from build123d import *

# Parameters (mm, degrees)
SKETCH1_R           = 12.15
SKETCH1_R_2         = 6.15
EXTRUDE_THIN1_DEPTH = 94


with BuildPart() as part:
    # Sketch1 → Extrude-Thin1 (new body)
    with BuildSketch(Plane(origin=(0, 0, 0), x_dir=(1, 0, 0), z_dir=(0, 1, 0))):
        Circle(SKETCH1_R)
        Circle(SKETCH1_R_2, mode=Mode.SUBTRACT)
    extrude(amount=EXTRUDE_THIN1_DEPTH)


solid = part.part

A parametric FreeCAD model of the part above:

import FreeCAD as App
import Part
import Sketcher

V = App.Vector

doc = App.newDocument("Part")
body = doc.addObject("PartDesign::Body", "Body")

# Sketch on XZ plane
sketch1 = body.newObject("Sketcher::SketchObject", "Sketch")
sketch1.AttachmentSupport = (doc.getObject("XZ_Plane"), [""])
sketch1.MapMode = "FlatFace"
sketch1.addGeometry([
    Part.Circle(V(0, 0, 0), V(0, 0, 1), 12.15),
    Part.Circle(V(0, 0, 0), V(0, 0, 1), 6.15),
], False)
sketch1.addConstraint([
    Sketcher.Constraint("Coincident", 0, 3, -1, 1),
    Sketcher.Constraint("Coincident", 1, 3, -1, 1),
    Sketcher.Constraint("Diameter", 0, 24.3),
    Sketcher.Constraint("Diameter", 1, 12.3),
])
pad1 = body.newObject("PartDesign::Pad", "Pad")
pad1.Profile = sketch1
pad1.Length = 94
pad1.Reversed = True

doc.recompute()
